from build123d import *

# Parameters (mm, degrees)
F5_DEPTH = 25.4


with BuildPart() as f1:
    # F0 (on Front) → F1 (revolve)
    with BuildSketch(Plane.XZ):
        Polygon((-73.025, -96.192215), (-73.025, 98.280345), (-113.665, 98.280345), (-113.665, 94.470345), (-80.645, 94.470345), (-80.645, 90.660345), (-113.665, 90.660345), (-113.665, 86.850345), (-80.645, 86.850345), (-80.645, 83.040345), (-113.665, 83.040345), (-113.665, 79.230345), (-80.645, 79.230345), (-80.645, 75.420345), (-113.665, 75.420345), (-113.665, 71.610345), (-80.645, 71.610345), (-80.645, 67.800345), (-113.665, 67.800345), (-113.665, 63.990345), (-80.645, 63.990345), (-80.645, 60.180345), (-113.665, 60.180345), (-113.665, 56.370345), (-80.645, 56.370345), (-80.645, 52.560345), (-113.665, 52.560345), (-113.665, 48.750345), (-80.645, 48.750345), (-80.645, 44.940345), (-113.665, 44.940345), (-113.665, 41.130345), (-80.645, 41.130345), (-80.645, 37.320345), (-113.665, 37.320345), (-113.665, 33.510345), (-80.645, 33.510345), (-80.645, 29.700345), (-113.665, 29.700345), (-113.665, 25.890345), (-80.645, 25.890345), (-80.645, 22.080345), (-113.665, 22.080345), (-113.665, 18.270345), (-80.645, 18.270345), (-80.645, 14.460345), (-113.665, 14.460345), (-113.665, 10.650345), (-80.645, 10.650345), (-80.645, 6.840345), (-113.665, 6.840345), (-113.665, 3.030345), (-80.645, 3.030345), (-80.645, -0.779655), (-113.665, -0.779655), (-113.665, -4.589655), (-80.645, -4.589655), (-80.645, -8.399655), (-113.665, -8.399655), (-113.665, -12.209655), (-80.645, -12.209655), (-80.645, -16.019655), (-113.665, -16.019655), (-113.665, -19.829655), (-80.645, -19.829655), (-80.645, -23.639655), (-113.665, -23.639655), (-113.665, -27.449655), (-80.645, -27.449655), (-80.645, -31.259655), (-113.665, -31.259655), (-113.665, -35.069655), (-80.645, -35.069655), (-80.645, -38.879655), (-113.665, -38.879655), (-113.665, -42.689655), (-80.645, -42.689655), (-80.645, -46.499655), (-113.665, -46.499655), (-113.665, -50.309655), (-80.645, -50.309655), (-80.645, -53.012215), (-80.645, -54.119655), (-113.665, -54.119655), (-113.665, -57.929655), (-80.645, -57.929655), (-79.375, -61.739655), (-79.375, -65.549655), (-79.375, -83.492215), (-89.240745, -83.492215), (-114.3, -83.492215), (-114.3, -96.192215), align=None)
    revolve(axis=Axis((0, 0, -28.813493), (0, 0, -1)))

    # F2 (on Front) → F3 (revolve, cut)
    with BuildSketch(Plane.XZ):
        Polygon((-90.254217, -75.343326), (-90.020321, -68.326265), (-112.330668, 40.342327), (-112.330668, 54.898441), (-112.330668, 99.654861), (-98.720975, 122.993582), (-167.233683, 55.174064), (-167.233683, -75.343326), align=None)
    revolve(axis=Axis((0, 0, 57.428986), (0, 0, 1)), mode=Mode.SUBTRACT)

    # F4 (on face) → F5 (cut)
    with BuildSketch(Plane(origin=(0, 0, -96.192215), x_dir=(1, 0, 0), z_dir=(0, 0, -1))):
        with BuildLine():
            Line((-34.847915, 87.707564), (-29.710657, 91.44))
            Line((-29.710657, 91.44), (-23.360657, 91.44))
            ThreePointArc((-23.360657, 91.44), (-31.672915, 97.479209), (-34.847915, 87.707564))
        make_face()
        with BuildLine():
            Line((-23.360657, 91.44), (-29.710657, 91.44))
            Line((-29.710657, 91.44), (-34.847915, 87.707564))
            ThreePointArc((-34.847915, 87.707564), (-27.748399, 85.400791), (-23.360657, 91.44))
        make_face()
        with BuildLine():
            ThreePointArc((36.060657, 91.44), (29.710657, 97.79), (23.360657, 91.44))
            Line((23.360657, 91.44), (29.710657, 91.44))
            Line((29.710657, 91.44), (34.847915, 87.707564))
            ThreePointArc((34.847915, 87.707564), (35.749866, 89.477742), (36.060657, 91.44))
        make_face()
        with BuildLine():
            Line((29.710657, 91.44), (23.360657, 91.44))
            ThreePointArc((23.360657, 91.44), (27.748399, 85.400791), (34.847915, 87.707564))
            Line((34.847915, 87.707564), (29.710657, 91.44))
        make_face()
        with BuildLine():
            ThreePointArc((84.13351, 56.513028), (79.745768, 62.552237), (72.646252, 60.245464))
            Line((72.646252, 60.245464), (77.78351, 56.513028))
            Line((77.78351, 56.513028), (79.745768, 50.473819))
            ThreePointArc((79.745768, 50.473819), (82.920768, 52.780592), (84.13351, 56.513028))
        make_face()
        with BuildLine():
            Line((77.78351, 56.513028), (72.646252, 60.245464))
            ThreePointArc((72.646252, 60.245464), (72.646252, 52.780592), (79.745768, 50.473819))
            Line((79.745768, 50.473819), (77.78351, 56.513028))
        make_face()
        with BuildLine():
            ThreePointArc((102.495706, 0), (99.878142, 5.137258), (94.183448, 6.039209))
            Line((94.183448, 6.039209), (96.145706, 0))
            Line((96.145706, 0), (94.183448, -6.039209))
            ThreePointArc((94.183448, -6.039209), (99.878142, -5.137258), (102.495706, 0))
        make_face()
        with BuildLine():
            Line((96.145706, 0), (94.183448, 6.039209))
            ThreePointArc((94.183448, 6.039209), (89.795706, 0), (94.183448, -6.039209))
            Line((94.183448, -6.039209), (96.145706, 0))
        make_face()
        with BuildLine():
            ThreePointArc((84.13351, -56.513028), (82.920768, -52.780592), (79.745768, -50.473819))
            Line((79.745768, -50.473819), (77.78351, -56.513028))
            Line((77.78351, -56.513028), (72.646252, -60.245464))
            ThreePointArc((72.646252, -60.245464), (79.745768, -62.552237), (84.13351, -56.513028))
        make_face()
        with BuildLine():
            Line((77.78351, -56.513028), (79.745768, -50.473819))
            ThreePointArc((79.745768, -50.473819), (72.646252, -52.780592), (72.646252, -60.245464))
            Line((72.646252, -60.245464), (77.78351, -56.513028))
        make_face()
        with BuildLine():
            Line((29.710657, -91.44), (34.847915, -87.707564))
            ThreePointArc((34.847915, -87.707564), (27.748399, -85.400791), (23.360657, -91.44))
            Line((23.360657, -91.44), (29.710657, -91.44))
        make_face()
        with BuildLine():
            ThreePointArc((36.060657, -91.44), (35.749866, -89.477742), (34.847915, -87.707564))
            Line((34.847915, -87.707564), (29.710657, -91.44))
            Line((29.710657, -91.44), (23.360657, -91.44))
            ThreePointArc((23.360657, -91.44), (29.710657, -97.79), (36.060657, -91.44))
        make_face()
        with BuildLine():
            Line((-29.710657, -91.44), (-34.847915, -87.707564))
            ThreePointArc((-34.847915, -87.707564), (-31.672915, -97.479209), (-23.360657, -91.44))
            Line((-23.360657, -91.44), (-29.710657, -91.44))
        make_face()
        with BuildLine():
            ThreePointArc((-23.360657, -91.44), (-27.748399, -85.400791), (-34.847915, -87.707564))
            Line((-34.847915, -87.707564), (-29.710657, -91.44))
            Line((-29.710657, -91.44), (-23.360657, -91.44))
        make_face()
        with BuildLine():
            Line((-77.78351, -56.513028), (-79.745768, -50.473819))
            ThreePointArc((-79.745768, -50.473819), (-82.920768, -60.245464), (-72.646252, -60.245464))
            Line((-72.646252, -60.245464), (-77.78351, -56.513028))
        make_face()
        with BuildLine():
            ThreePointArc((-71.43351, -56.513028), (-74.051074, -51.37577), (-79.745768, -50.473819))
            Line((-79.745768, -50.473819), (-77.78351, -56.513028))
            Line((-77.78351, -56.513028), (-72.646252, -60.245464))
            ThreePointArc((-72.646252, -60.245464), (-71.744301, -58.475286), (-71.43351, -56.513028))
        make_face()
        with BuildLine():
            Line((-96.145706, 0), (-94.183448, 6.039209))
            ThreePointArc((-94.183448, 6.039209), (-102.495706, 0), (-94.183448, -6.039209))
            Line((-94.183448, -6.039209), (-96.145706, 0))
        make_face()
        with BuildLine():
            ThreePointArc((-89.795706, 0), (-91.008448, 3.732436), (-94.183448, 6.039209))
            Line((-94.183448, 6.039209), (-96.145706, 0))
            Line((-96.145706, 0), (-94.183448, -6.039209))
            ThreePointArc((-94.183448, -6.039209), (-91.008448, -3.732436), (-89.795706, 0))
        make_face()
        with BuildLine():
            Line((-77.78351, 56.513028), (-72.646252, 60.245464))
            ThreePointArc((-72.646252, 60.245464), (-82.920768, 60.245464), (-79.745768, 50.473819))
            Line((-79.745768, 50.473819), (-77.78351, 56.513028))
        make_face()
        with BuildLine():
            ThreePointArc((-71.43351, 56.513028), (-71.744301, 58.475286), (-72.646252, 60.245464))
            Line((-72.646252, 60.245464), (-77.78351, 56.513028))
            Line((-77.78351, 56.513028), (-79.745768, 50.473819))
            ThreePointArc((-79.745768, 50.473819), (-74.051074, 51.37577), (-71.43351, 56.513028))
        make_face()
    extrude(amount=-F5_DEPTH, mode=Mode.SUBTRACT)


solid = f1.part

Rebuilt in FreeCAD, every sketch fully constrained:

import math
import FreeCAD as App
import Part
import Sketcher

V = App.Vector
Q = App.Units.Quantity

doc = App.newDocument("Part")
params = doc.addObject("Spreadsheet::Sheet", "Params")
for row, (alias, value) in enumerate([
    ("sketch1_width", "1.6 in"),
    ("sketch1_width2", "1.3 in"),
    ("sketch1_height", "0.5 in"),
    ("sketch1_height2", "0.15 in"),
    ("sketch1_width3", "1.375 in"),
    ("revolution_angle", "360 deg"),
    ("groove_angle", "360 deg"),
    ("sketch3_radius", "0.25 in"),
    ("pocket1_length", "1 in"),
], start=1):
    params.set(f"A{row}", alias)
    params.set(f"B{row}", "=" + value)
    params.setAlias(f"B{row}", alias)

body = doc.addObject("PartDesign::Body", "Body")

# Sketch on XZ plane
sketch1 = doc.addObject("Sketcher::SketchObject", "Sketch")
body.addObject(sketch1)
sketch1.AttachmentSupport = (doc.XZ_Plane, [""])
sketch1.MapMode = "FlatFace"
sketch1.addGeometry(Part.LineSegment(V(-73.025, -96.192215, 0), V(-73.025, 98.280345, 0)), False)
sketch1.addGeometry(Part.LineSegment(V(-73.025, 98.280345, 0), V(-113.665, 98.280345, 0)), False)
sketch1.addGeometry(Part.LineSegment(V(-113.665, 98.280345, 0), V(-113.665, 94.470345, 0)), False)
sketch1.addGeometry(Part.LineSegment(V(-113.665, 94.470345, 0), V(-80.645, 94.470345, 0)), False)
sketch1.addGeometry(Part.LineSegment(V(-80.645, 94.470345, 0), V(-80.645, 90.660345, 0)), False)
sketch1.addGeometry(Part.LineSegment(V(-80.645, 90.660345, 0), V(-113.665, 90.660345, 0)), False)
sketch1.addGeometry(Part.LineSegment(V(-113.665, 90.660345, 0), V(-113.665, 86.850345, 0)), False)
sketch1.addGeometry(Part.LineSegment(V(-113.665, 86.850345, 0), V(-80.645, 86.850345, 0)), False)
sketch1.addGeometry(Part.LineSegment(V(-80.645, 86.850345, 0), V(-80.645, 83.040345, 0)), False)
sketch1.addGeometry(Part.LineSegment(V(-80.645, 83.040345, 0), V(-113.665, 83.040345, 0)), False)
sketch1.addGeometry(Part.LineSegment(V(-113.665, 83.040345, 0), V(-113.665, 79.230345, 0)), False)
sketch1.addGeometry(Part.LineSegment(V(-113.665, 79.230345, 0), V(-80.645, 79.230345, 0)), False)
sketch1.addGeometry(Part.LineSegment(V(-80.645, 79.230345, 0), V(-80.645, 75.420345, 0)), False)
sketch1.addGeometry(Part.LineSegment(V(-80.645, 75.420345, 0), V(-113.665, 75.420345, 0)), False)
sketch1.addGeometry(Part.LineSegment(V(-113.665, 75.420345, 0), V(-113.665, 71.610345, 0)), False)
sketch1.addGeometry(Part.LineSegment(V(-113.665, 71.610345, 0), V(-80.645, 71.610345, 0)), False)
sketch1.addGeometry(Part.LineSegment(V(-80.645, 71.610345, 0), V(-80.645, 67.800345, 0)), False)
sketch1.addGeometry(Part.LineSegment(V(-80.645, 67.800345, 0), V(-113.665, 67.800345, 0)), False)
sketch1.addGeometry(Part.LineSegment(V(-113.665, 67.800345, 0), V(-113.665, 63.990345, 0)), False)
sketch1.addGeometry(Part.LineSegment(V(-113.665, 63.990345, 0), V(-80.645, 63.990345, 0)), False)
sketch1.addGeometry(Part.LineSegment(V(-80.645, 63.990345, 0), V(-80.645, 60.180345, 0)), False)
sketch1.addGeometry(Part.LineSegment(V(-80.645, 60.180345, 0), V(-113.665, 60.180345, 0)), False)
sketch1.addGeometry(Part.LineSegment(V(-113.665, 60.180345, 0), V(-113.665, 56.370345, 0)), False)
sketch1.addGeometry(Part.LineSegment(V(-113.665, 56.370345, 0), V(-80.645, 56.370345, 0)), False)
sketch1.addGeometry(Part.LineSegment(V(-80.645, 56.370345, 0), V(-80.645, 52.560345, 0)), False)
sketch1.addGeometry(Part.LineSegment(V(-80.645, 52.560345, 0), V(-113.665, 52.560345, 0)), False)
sketch1.addGeometry(Part.LineSegment(V(-113.665, 52.560345, 0), V(-113.665, 48.750345, 0)), False)
sketch1.addGeometry(Part.LineSegment(V(-113.665, 48.750345, 0), V(-80.645, 48.750345, 0)), False)
sketch1.addGeometry(Part.LineSegment(V(-80.645, 48.750345, 0), V(-80.645, 44.940345, 0)), False)
sketch1.addGeometry(Part.LineSegment(V(-80.645, 44.940345, 0), V(-113.665, 44.940345, 0)), False)
sketch1.addGeometry(Part.LineSegment(V(-113.665, 44.940345, 0), V(-113.665, 41.130345, 0)), False)
sketch1.addGeometry(Part.LineSegment(V(-113.665, 41.130345, 0), V(-80.645, 41.130345, 0)), False)
sketch1.addGeometry(Part.LineSegment(V(-80.645, 41.130345, 0), V(-80.645, 37.320345, 0)), False)
sketch1.addGeometry(Part.LineSegment(V(-80.645, 37.320345, 0), V(-113.665, 37.320345, 0)), False)
sketch1.addGeometry(Part.LineSegment(V(-113.665, 37.320345, 0), V(-113.665, 33.510345, 0)), False)
sketch1.addGeometry(Part.LineSegment(V(-113.665, 33.510345, 0), V(-80.645, 33.510345, 0)), False)
sketch1.addGeometry(Part.LineSegment(V(-80.645, 33.510345, 0), V(-80.645, 29.700345, 0)), False)
sketch1.addGeometry(Part.LineSegment(V(-80.645, 29.700345, 0), V(-113.665, 29.700345, 0)), False)
sketch1.addGeometry(Part.LineSegment(V(-113.665, 29.700345, 0), V(-113.665, 25.890345, 0)), False)
sketch1.addGeometry(Part.LineSegment(V(-113.665, 25.890345, 0), V(-80.645, 25.890345, 0)), False)
sketch1.addGeometry(Part.LineSegment(V(-80.645, 25.890345, 0), V(-80.645, 22.080345, 0)), False)
sketch1.addGeometry(Part.LineSegment(V(-80.645, 22.080345, 0), V(-113.665, 22.080345, 0)), False)
sketch1.addGeometry(Part.LineSegment(V(-113.665, 22.080345, 0), V(-113.665, 18.270345, 0)), False)
sketch1.addGeometry(Part.LineSegment(V(-113.665, 18.270345, 0), V(-80.645, 18.270345, 0)), False)
sketch1.addGeometry(Part.LineSegment(V(-80.645, 18.270345, 0), V(-80.645, 14.460345, 0)), False)
sketch1.addGeometry(Part.LineSegment(V(-80.645, 14.460345, 0), V(-113.665, 14.460345, 0)), False)
sketch1.addGeometry(Part.LineSegment(V(-113.665, 14.460345, 0), V(-113.665, 10.650345, 0)), False)
sketch1.addGeometry(Part.LineSegment(V(-113.665, 10.650345, 0), V(-80.645, 10.650345, 0)), False)
sketch1.addGeometry(Part.LineSegment(V(-80.645, 10.650345, 0), V(-80.645, 6.840345, 0)), False)
sketch1.addGeometry(Part.LineSegment(V(-80.645, 6.840345, 0), V(-113.665, 6.840345, 0)), False)
sketch1.addGeometry(Part.LineSegment(V(-113.665, 6.840345, 0), V(-113.665, 3.030345, 0)), False)
sketch1.addGeometry(Part.LineSegment(V(-113.665, 3.030345, 0), V(-80.645, 3.030345, 0)), False)
sketch1.addGeometry(Part.LineSegment(V(-80.645, 3.030345, 0), V(-80.645, -0.779655, 0)), False)
sketch1.addGeometry(Part.LineSegment(V(-80.645, -0.779655, 0), V(-113.665, -0.779655, 0)), False)
sketch1.addGeometry(Part.LineSegment(V(-113.665, -0.779655, 0), V(-113.665, -4.589655, 0)), False)
sketch1.addGeometry(Part.LineSegment(V(-113.665, -4.589655, 0), V(-80.645, -4.589655, 0)), False)
sketch1.addGeometry(Part.LineSegment(V(-80.645, -4.589655, 0), V(-80.645, -8.399655, 0)), False)
sketch1.addGeometry(Part.LineSegment(V(-80.645, -8.399655, 0), V(-113.665, -8.399655, 0)), False)
sketch1.addGeometry(Part.LineSegment(V(-113.665, -8.399655, 0), V(-113.665, -12.209655, 0)), False)
sketch1.addGeometry(Part.LineSegment(V(-113.665, -12.209655, 0), V(-80.645, -12.209655, 0)), False)
sketch1.addGeometry(Part.LineSegment(V(-80.645, -12.209655, 0), V(-80.645, -16.019655, 0)), False)
sketch1.addGeometry(Part.LineSegment(V(-80.645, -16.019655, 0), V(-113.665, -16.019655, 0)), False)
sketch1.addGeometry(Part.LineSegment(V(-113.665, -16.019655, 0), V(-113.665, -19.829655, 0)), False)
sketch1.addGeometry(Part.LineSegment(V(-113.665, -19.829655, 0), V(-80.645, -19.829655, 0)), False)
sketch1.addGeometry(Part.LineSegment(V(-80.645, -19.829655, 0), V(-80.645, -23.639655, 0)), False)
sketch1.addGeometry(Part.LineSegment(V(-80.645, -23.639655, 0), V(-113.665, -23.639655, 0)), False)
sketch1.addGeometry(Part.LineSegment(V(-113.665, -23.639655, 0), V(-113.665, -27.449655, 0)), False)
sketch1.addGeometry(Part.LineSegment(V(-113.665, -27.449655, 0), V(-80.645, -27.449655, 0)), False)
sketch1.addGeometry(Part.LineSegment(V(-80.645, -27.449655, 0), V(-80.645, -31.259655, 0)), False)
sketch1.addGeometry(Part.LineSegment(V(-80.645, -31.259655, 0), V(-113.665, -31.259655, 0)), False)
sketch1.addGeometry(Part.LineSegment(V(-113.665, -31.259655, 0), V(-113.665, -35.069655, 0)), False)
sketch1.addGeometry(Part.LineSegment(V(-113.665, -35.069655, 0), V(-80.645, -35.069655, 0)), False)
sketch1.addGeometry(Part.LineSegment(V(-80.645, -35.069655, 0), V(-80.645, -38.879655, 0)), False)
sketch1.addGeometry(Part.LineSegment(V(-80.645, -38.879655, 0), V(-113.665, -38.879655, 0)), False)
sketch1.addGeometry(Part.LineSegment(V(-113.665, -38.879655, 0), V(-113.665, -42.689655, 0)), False)
sketch1.addGeometry(Part.LineSegment(V(-113.665, -42.689655, 0), V(-80.645, -42.689655, 0)), False)
sketch1.addGeometry(Part.LineSegment(V(-80.645, -42.689655, 0), V(-80.645, -46.499655, 0)), False)
sketch1.addGeometry(Part.LineSegment(V(-80.645, -46.499655, 0), V(-113.665, -46.499655, 0)), False)
sketch1.addGeometry(Part.LineSegment(V(-113.665, -46.499655, 0), V(-113.665, -50.309655, 0)), False)
sketch1.addGeometry(Part.LineSegment(V(-113.665, -50.309655, 0), V(-80.645, -50.309655, 0)), False)
sketch1.addGeometry(Part.LineSegment(V(-80.645, -50.309655, 0), V(-80.645, -54.119655, 0)), False)
sketch1.addGeometry(Part.LineSegment(V(-80.645, -54.119655, 0), V(-113.665, -54.119655, 0)), False)
sketch1.addGeometry(Part.LineSegment(V(-113.665, -54.119655, 0), V(-113.665, -57.929655, 0)), False)
sketch1.addGeometry(Part.LineSegment(V(-113.665, -57.929655, 0), V(-80.645, -57.929655, 0)), False)
sketch1.addGeometry(Part.LineSegment(V(-80.645, -57.929655, 0), V(-79.375, -61.739655, 0)), False)
sketch1.addGeometry(Part.LineSegment(V(-79.375, -61.739655, 0), V(-79.375, -83.492215, 0)), False)
sketch1.addGeometry(Part.LineSegment(V(-79.375, -83.492215, 0), V(-114.3, -83.492215, 0)), False)
sketch1.addGeometry(Part.LineSegment(V(-114.3, -83.492215, 0), V(-114.3, -96.192215, 0)), False)
sketch1.addGeometry(Part.LineSegment(V(-114.3, -96.192215, 0), V(-73.025, -96.192215, 0)), False)
sketch1.addConstraint(Sketcher.Constraint("Coincident", 0, 2, 1, 1))
sketch1.addConstraint(Sketcher.Constraint("Coincident", 1, 2, 2, 1))
sketch1.addConstraint(Sketcher.Constraint("Coincident", 2, 2, 3, 1))
sketch1.addConstraint(Sketcher.Constraint("Coincident", 3, 2, 4, 1))
sketch1.addConstraint(Sketcher.Constraint("Coincident", 4, 2, 5, 1))
sketch1.addConstraint(Sketcher.Constraint("Coincident", 5, 2, 6, 1))
sketch1.addConstraint(Sketcher.Constraint("Coincident", 6, 2, 7, 1))
sketch1.addConstraint(Sketcher.Constraint("Coincident", 7, 2, 8, 1))
sketch1.addConstraint(Sketcher.Constraint("Coincident", 8, 2, 9, 1))
sketch1.addConstraint(Sketcher.Constraint("Coincident", 9, 2, 10, 1))
sketch1.addConstraint(Sketcher.Constraint("Coincident", 10, 2, 11, 1))
sketch1.addConstraint(Sketcher.Constraint("Coincident", 11, 2, 12, 1))
sketch1.addConstraint(Sketcher.Constraint("Coincident", 12, 2, 13, 1))
sketch1.addConstraint(Sketcher.Constraint("Coincident", 13, 2, 14, 1))
sketch1.addConstraint(Sketcher.Constraint("Coincident", 14, 2, 15, 1))
sketch1.addConstraint(Sketcher.Constraint("Coincident", 15, 2, 16, 1))
sketch1.addConstraint(Sketcher.Constraint("Coincident", 16, 2, 17, 1))
sketch1.addConstraint(Sketcher.Constraint("Coincident", 17, 2, 18, 1))
sketch1.addConstraint(Sketcher.Constraint("Coincident", 18, 2, 19, 1))
sketch1.addConstraint(Sketcher.Constraint("Coincident", 19, 2, 20, 1))
sketch1.addConstraint(Sketcher.Constraint("Coincident", 20, 2, 21, 1))
sketch1.addConstraint(Sketcher.Constraint("Coincident", 21, 2, 22, 1))
sketch1.addConstraint(Sketcher.Constraint("Coincident", 22, 2, 23, 1))
sketch1.addConstraint(Sketcher.Constraint("Coincident", 23, 2, 24, 1))
sketch1.addConstraint(Sketcher.Constraint("Coincident", 24, 2, 25, 1))
sketch1.addConstraint(Sketcher.Constraint("Coincident", 25, 2, 26, 1))
sketch1.addConstraint(Sketcher.Constraint("Coincident", 26, 2, 27, 1))
sketch1.addConstraint(Sketcher.Constraint("Coincident", 27, 2, 28, 1))
sketch1.addConstraint(Sketcher.Constraint("Coincident", 28, 2, 29, 1))
sketch1.addConstraint(Sketcher.Constraint("Coincident", 29, 2, 30, 1))
sketch1.addConstraint(Sketcher.Constraint("Coincident", 30, 2, 31, 1))
sketch1.addConstraint(Sketcher.Constraint("Coincident", 31, 2, 32, 1))
sketch1.addConstraint(Sketcher.Constraint("Coincident", 32, 2, 33, 1))
sketch1.addConstraint(Sketcher.Constraint("Coincident", 33, 2, 34, 1))
sketch1.addConstraint(Sketcher.Constraint("Coincident", 34, 2, 35, 1))
sketch1.addConstraint(Sketcher.Constraint("Coincident", 35, 2, 36, 1))
sketch1.addConstraint(Sketcher.Constraint("Coincident", 36, 2, 37, 1))
sketch1.addConstraint(Sketcher.Constraint("Coincident", 37, 2, 38, 1))
sketch1.addConstraint(Sketcher.Constraint("Coincident", 38, 2, 39, 1))
sketch1.addConstraint(Sketcher.Constraint("Coincident", 39, 2, 40, 1))
sketch1.addConstraint(Sketcher.Constraint("Coincident", 40, 2, 41, 1))
sketch1.addConstraint(Sketcher.Constraint("Coincident", 41, 2, 42, 1))
sketch1.addConstraint(Sketcher.Constraint("Coincident", 42, 2, 43, 1))
sketch1.addConstraint(Sketcher.Constraint("Coincident", 43, 2, 44, 1))
sketch1.addConstraint(Sketcher.Constraint("Coincident", 44, 2, 45, 1))
sketch1.addConstraint(Sketcher.Constraint("Coincident", 45, 2, 46, 1))
sketch1.addConstraint(Sketcher.Constraint("Coincident", 46, 2, 47, 1))
sketch1.addConstraint(Sketcher.Constraint("Coincident", 47, 2, 48, 1))
sketch1.addConstraint(Sketcher.Constraint("Coincident", 48, 2, 49, 1))
sketch1.addConstraint(Sketcher.Constraint("Coincident", 49, 2, 50, 1))
sketch1.addConstraint(Sketcher.Constraint("Coincident", 50, 2, 51, 1))
sketch1.addConstraint(Sketcher.Constraint("Coincident", 51, 2, 52, 1))
sketch1.addConstraint(Sketcher.Constraint("Coincident", 52, 2, 53, 1))
sketch1.addConstraint(Sketcher.Constraint("Coincident", 53, 2, 54, 1))
sketch1.addConstraint(Sketcher.Constraint("Coincident", 54, 2, 55, 1))
sketch1.addConstraint(Sketcher.Constraint("Coincident", 55, 2, 56, 1))
sketch1.addConstraint(Sketcher.Constraint("Coincident", 56, 2, 57, 1))
sketch1.addConstraint(Sketcher.Constraint("Coincident", 57, 2, 58, 1))
sketch1.addConstraint(Sketcher.Constraint("Coincident", 58, 2, 59, 1))
sketch1.addConstraint(Sketcher.Constraint("Coincident", 59, 2, 60, 1))
sketch1.addConstraint(Sketcher.Constraint("Coincident", 60, 2, 61, 1))
sketch1.addConstraint(Sketcher.Constraint("Coincident", 61, 2, 62, 1))
sketch1.addConstraint(Sketcher.Constraint("Coincident", 62, 2, 63, 1))
sketch1.addConstraint(Sketcher.Constraint("Coincident", 63, 2, 64, 1))
sketch1.addConstraint(Sketcher.Constraint("Coincident", 64, 2, 65, 1))
sketch1.addConstraint(Sketcher.Constraint("Coincident", 65, 2, 66, 1))
sketch1.addConstraint(Sketcher.Constraint("Coincident", 66, 2, 67, 1))
sketch1.addConstraint(Sketcher.Constraint("Coincident", 67, 2, 68, 1))
sketch1.addConstraint(Sketcher.Constraint("Coincident", 68, 2, 69, 1))
sketch1.addConstraint(Sketcher.Constraint("Coincident", 69, 2, 70, 1))
sketch1.addConstraint(Sketcher.Constraint("Coincident", 70, 2, 71, 1))
sketch1.addConstraint(Sketcher.Constraint("Coincident", 71, 2, 72, 1))
sketch1.addConstraint(Sketcher.Constraint("Coincident", 72, 2, 73, 1))
sketch1.addConstraint(Sketcher.Constraint("Coincident", 73, 2, 74, 1))
sketch1.addConstraint(Sketcher.Constraint("Coincident", 74, 2, 75, 1))
sketch1.addConstraint(Sketcher.Constraint("Coincident", 75, 2, 76, 1))
sketch1.addConstraint(Sketcher.Constraint("Coincident", 76, 2, 77, 1))
sketch1.addConstraint(Sketcher.Constraint("Coincident", 77, 2, 78, 1))
sketch1.addConstraint(Sketcher.Constraint("Coincident", 78, 2, 79, 1))
sketch1.addConstraint(Sketcher.Constraint("Coincident", 79, 2, 80, 1))
sketch1.addConstraint(Sketcher.Constraint("Coincident", 80, 2, 81, 1))
sketch1.addConstraint(Sketcher.Constraint("Coincident", 81, 2, 82, 1))
sketch1.addConstraint(Sketcher.Constraint("Coincident", 82, 2, 83, 1))
sketch1.addConstraint(Sketcher.Constraint("Coincident", 83, 2, 84, 1))
sketch1.addConstraint(Sketcher.Constraint("Coincident", 84, 2, 85, 1))
sketch1.addConstraint(Sketcher.Constraint("Coincident", 85, 2, 86, 1))
sketch1.addConstraint(Sketcher.Constraint("Coincident", 86, 2, 87, 1))
sketch1.addConstraint(Sketcher.Constraint("Coincident", 87, 2, 88, 1))
sketch1.addConstraint(Sketcher.Constraint("Coincident", 88, 2, 0, 1))
sketch1.addConstraint(Sketcher.Constraint("Vertical", 0))
sketch1.addConstraint(Sketcher.Constraint("Horizontal", 1))
sketch1.addConstraint(Sketcher.Constraint("Vertical", 2))
sketch1.addConstraint(Sketcher.Constraint("Horizontal", 3))
sketch1.addConstraint(Sketcher.Constraint("Vertical", 4))
sketch1.addConstraint(Sketcher.Constraint("Horizontal", 5))
sketch1.addConstraint(Sketcher.Constraint("Vertical", 6))
sketch1.addConstraint(Sketcher.Constraint("Horizontal", 7))
sketch1.addConstraint(Sketcher.Constraint("Vertical", 8))
sketch1.addConstraint(Sketcher.Constraint("Horizontal", 9))
sketch1.addConstraint(Sketcher.Constraint("Vertical", 10))
sketch1.addConstraint(Sketcher.Constraint("Horizontal", 11))
sketch1.addConstraint(Sketcher.Constraint("Vertical", 12))
sketch1.addConstraint(Sketcher.Constraint("Horizontal", 13))
sketch1.addConstraint(Sketcher.Constraint("Vertical", 14))
sketch1.addConstraint(Sketcher.Constraint("Horizontal", 15))
sketch1.addConstraint(Sketcher.Constraint("Vertical", 16))
sketch1.addConstraint(Sketcher.Constraint("Horizontal", 17))
sketch1.addConstraint(Sketcher.Constraint("Vertical", 18))
sketch1.addConstraint(Sketcher.Constraint("Horizontal", 19))
sketch1.addConstraint(Sketcher.Constraint("Vertical", 20))
sketch1.addConstraint(Sketcher.Constraint("Horizontal", 21))
sketch1.addConstraint(Sketcher.Constraint("Vertical", 22))
sketch1.addConstraint(Sketcher.Constraint("Horizontal", 23))
sketch1.addConstraint(Sketcher.Constraint("Vertical", 24))
sketch1.addConstraint(Sketcher.Constraint("Horizontal", 25))
sketch1.addConstraint(Sketcher.Constraint("Vertical", 26))
sketch1.addConstraint(Sketcher.Constraint("Horizontal", 27))
sketch1.addConstraint(Sketcher.Constraint("Vertical", 28))
sketch1.addConstraint(Sketcher.Constraint("Horizontal", 29))
sketch1.addConstraint(Sketcher.Constraint("Vertical", 30))
sketch1.addConstraint(Sketcher.Constraint("Horizontal", 31))
sketch1.addConstraint(Sketcher.Constraint("Vertical", 32))
sketch1.addConstraint(Sketcher.Constraint("Horizontal", 33))
sketch1.addConstraint(Sketcher.Constraint("Vertical", 34))
sketch1.addConstraint(Sketcher.Constraint("Horizontal", 35))
sketch1.addConstraint(Sketcher.Constraint("Vertical", 36))
sketch1.addConstraint(Sketcher.Constraint("Horizontal", 37))
sketch1.addConstraint(Sketcher.Constraint("Vertical", 38))
sketch1.addConstraint(Sketcher.Constraint("Horizontal", 39))
sketch1.addConstraint(Sketcher.Constraint("Vertical", 40))
sketch1.addConstraint(Sketcher.Constraint("Horizontal", 41))
sketch1.addConstraint(Sketcher.Constraint("Vertical", 42))
sketch1.addConstraint(Sketcher.Constraint("Horizontal", 43))
sketch1.addConstraint(Sketcher.Constraint("Vertical", 44))
sketch1.addConstraint(Sketcher.Constraint("Horizontal", 45))
sketch1.addConstraint(Sketcher.Constraint("Vertical", 46))
sketch1.addConstraint(Sketcher.Constraint("Horizontal", 47))
sketch1.addConstraint(Sketcher.Constraint("Vertical", 48))
sketch1.addConstraint(Sketcher.Constraint("Horizontal", 49))
sketch1.addConstraint(Sketcher.Constraint("Vertical", 50))
sketch1.addConstraint(Sketcher.Constraint("Horizontal", 51))
sketch1.addConstraint(Sketcher.Constraint("Vertical", 52))
sketch1.addConstraint(Sketcher.Constraint("Horizontal", 53))
sketch1.addConstraint(Sketcher.Constraint("Vertical", 54))
sketch1.addConstraint(Sketcher.Constraint("Horizontal", 55))
sketch1.addConstraint(Sketcher.Constraint("Vertical", 56))
sketch1.addConstraint(Sketcher.Constraint("Horizontal", 57))
sketch1.addConstraint(Sketcher.Constraint("Vertical", 58))
sketch1.addConstraint(Sketcher.Constraint("Horizontal", 59))
sketch1.addConstraint(Sketcher.Constraint("Vertical", 60))
sketch1.addConstraint(Sketcher.Constraint("Horizontal", 61))
sketch1.addConstraint(Sketcher.Constraint("Vertical", 62))
sketch1.addConstraint(Sketcher.Constraint("Horizontal", 63))
sketch1.addConstraint(Sketcher.Constraint("Vertical", 64))
sketch1.addConstraint(Sketcher.Constraint("Horizontal", 65))
sketch1.addConstraint(Sketcher.Constraint("Vertical", 66))
sketch1.addConstraint(Sketcher.Constraint("Horizontal", 67))
sketch1.addConstraint(Sketcher.Constraint("Vertical", 68))
sketch1.addConstraint(Sketcher.Constraint("Horizontal", 69))
sketch1.addConstraint(Sketcher.Constraint("Vertical", 70))
sketch1.addConstraint(Sketcher.Constraint("Horizontal", 71))
sketch1.addConstraint(Sketcher.Constraint("Vertical", 72))
sketch1.addConstraint(Sketcher.Constraint("Horizontal", 73))
sketch1.addConstraint(Sketcher.Constraint("Vertical", 74))
sketch1.addConstraint(Sketcher.Constraint("Horizontal", 75))
sketch1.addConstraint(Sketcher.Constraint("Vertical", 76))
sketch1.addConstraint(Sketcher.Constraint("Horizontal", 77))
sketch1.addConstraint(Sketcher.Constraint("Vertical", 78))
sketch1.addConstraint(Sketcher.Constraint("Horizontal", 79))
sketch1.addConstraint(Sketcher.Constraint("Vertical", 80))
sketch1.addConstraint(Sketcher.Constraint("Horizontal", 81))
sketch1.addConstraint(Sketcher.Constraint("Vertical", 82))
sketch1.addConstraint(Sketcher.Constraint("Horizontal", 83))
sketch1.addConstraint(Sketcher.Constraint("Vertical", 85))
sketch1.addConstraint(Sketcher.Constraint("Horizontal", 86))
sketch1.addConstraint(Sketcher.Constraint("Vertical", 87))
sketch1.addConstraint(Sketcher.Constraint("Horizontal", 88))
sketch1.addConstraint(Sketcher.Constraint("Vertical", 2, 2, 5, 2))
sketch1.addConstraint(Sketcher.Constraint("Vertical", 4, 2, 7, 2))
sketch1.addConstraint(Sketcher.Constraint("Vertical", 6, 2, 9, 2))
sketch1.addConstraint(Sketcher.Constraint("Vertical", 8, 2, 11, 2))
sketch1.addConstraint(Sketcher.Constraint("Vertical", 10, 2, 13, 2))
sketch1.addConstraint(Sketcher.Constraint("Vertical", 12, 2, 15, 2))
sketch1.addConstraint(Sketcher.Constraint("Vertical", 14, 2, 17, 2))
sketch1.addConstraint(Sketcher.Constraint("Vertical", 16, 2, 19, 2))
sketch1.addConstraint(Sketcher.Constraint("Vertical", 18, 2, 21, 2))
sketch1.addConstraint(Sketcher.Constraint("Vertical", 20, 2, 23, 2))
sketch1.addConstraint(Sketcher.Constraint("Vertical", 22, 2, 25, 2))
sketch1.addConstraint(Sketcher.Constraint("Vertical", 24, 2, 27, 2))
sketch1.addConstraint(Sketcher.Constraint("Vertical", 26, 2, 29, 2))
sketch1.addConstraint(Sketcher.Constraint("Vertical", 28, 2, 31, 2))
sketch1.addConstraint(Sketcher.Constraint("Vertical", 30, 2, 33, 2))
sketch1.addConstraint(Sketcher.Constraint("Vertical", 32, 2, 35, 2))
sketch1.addConstraint(Sketcher.Constraint("Vertical", 34, 2, 37, 2))
sketch1.addConstraint(Sketcher.Constraint("Vertical", 36, 2, 39, 2))
sketch1.addConstraint(Sketcher.Constraint("Vertical", 38, 2, 41, 2))
sketch1.addConstraint(Sketcher.Constraint("Vertical", 40, 2, 43, 2))
sketch1.addConstraint(Sketcher.Constraint("Vertical", 42, 2, 45, 2))
sketch1.addConstraint(Sketcher.Constraint("Vertical", 44, 2, 47, 2))
sketch1.addConstraint(Sketcher.Constraint("Vertical", 46, 2, 49, 2))
sketch1.addConstraint(Sketcher.Constraint("Vertical", 48, 2, 51, 2))
sketch1.addConstraint(Sketcher.Constraint("Vertical", 50, 2, 53, 2))
sketch1.addConstraint(Sketcher.Constraint("Vertical", 52, 2, 55, 2))
sketch1.addConstraint(Sketcher.Constraint("Vertical", 54, 2, 57, 2))
sketch1.addConstraint(Sketcher.Constraint("Vertical", 56, 2, 59, 2))
sketch1.addConstraint(Sketcher.Constraint("Vertical", 58, 2, 61, 2))
sketch1.addConstraint(Sketcher.Constraint("Vertical", 60, 2, 63, 2))
sketch1.addConstraint(Sketcher.Constraint("Vertical", 62, 2, 65, 2))
sketch1.addConstraint(Sketcher.Constraint("Vertical", 64, 2, 67, 2))
sketch1.addConstraint(Sketcher.Constraint("Vertical", 66, 2, 69, 2))
sketch1.addConstraint(Sketcher.Constraint("Vertical", 68, 2, 71, 2))
sketch1.addConstraint(Sketcher.Constraint("Vertical", 70, 2, 73, 2))
sketch1.addConstraint(Sketcher.Constraint("Vertical", 72, 2, 75, 2))
sketch1.addConstraint(Sketcher.Constraint("Vertical", 74, 2, 77, 2))
sketch1.addConstraint(Sketcher.Constraint("Vertical", 76, 2, 79, 2))
sketch1.addConstraint(Sketcher.Constraint("Vertical", 78, 2, 81, 2))
sketch1.addConstraint(Sketcher.Constraint("Vertical", 80, 2, 83, 2))
sketch1.addConstraint(Sketcher.Constraint("Equal", 2, 4))
sketch1.addConstraint(Sketcher.Constraint("Equal", 4, 6))
sketch1.addConstraint(Sketcher.Constraint("Equal", 6, 8))
sketch1.addConstraint(Sketcher.Constraint("Equal", 8, 10))
sketch1.addConstraint(Sketcher.Constraint("Equal", 10, 12))
sketch1.addConstraint(Sketcher.Constraint("Equal", 12, 14))
sketch1.addConstraint(Sketcher.Constraint("Equal", 14, 16))
sketch1.addConstraint(Sketcher.Constraint("Equal", 16, 18))
sketch1.addConstraint(Sketcher.Constraint("Equal", 18, 20))
sketch1.addConstraint(Sketcher.Constraint("Equal", 20, 22))
sketch1.addConstraint(Sketcher.Constraint("Equal", 22, 24))
sketch1.addConstraint(Sketcher.Constraint("Equal", 24, 26))
sketch1.addConstraint(Sketcher.Constraint("Equal", 26, 28))
sketch1.addConstraint(Sketcher.Constraint("Equal", 28, 30))
sketch1.addConstraint(Sketcher.Constraint("Equal", 30, 32))
sketch1.addConstraint(Sketcher.Constraint("Equal", 32, 34))
sketch1.addConstraint(Sketcher.Constraint("Equal", 34, 36))
sketch1.addConstraint(Sketcher.Constraint("Equal", 36, 38))
sketch1.addConstraint(Sketcher.Constraint("Equal", 38, 40))
sketch1.addConstraint(Sketcher.Constraint("Equal", 40, 42))
sketch1.addConstraint(Sketcher.Constraint("Equal", 42, 44))
sketch1.addConstraint(Sketcher.Constraint("Equal", 44, 46))
sketch1.addConstraint(Sketcher.Constraint("Equal", 46, 48))
sketch1.addConstraint(Sketcher.Constraint("Equal", 48, 50))
sketch1.addConstraint(Sketcher.Constraint("Equal", 50, 52))
sketch1.addConstraint(Sketcher.Constraint("Equal", 52, 54))
sketch1.addConstraint(Sketcher.Constraint("Equal", 54, 56))
sketch1.addConstraint(Sketcher.Constraint("Equal", 56, 58))
sketch1.addConstraint(Sketcher.Constraint("Equal", 58, 60))
sketch1.addConstraint(Sketcher.Constraint("Equal", 60, 62))
sketch1.addConstraint(Sketcher.Constraint("Equal", 62, 64))
sketch1.addConstraint(Sketcher.Constraint("Equal", 64, 66))
sketch1.addConstraint(Sketcher.Constraint("Equal", 66, 68))
sketch1.addConstraint(Sketcher.Constraint("Equal", 68, 70))
sketch1.addConstraint(Sketcher.Constraint("Equal", 70, 72))
sketch1.addConstraint(Sketcher.Constraint("Equal", 72, 74))
sketch1.addConstraint(Sketcher.Constraint("Equal", 74, 76))
sketch1.addConstraint(Sketcher.Constraint("Equal", 76, 78))
sketch1.addConstraint(Sketcher.Constraint("Equal", 78, 80))
sketch1.addConstraint(Sketcher.Constraint("Equal", 80, 82))
sketch1.addConstraint(Sketcher.Constraint("DistanceX", 1, 2, 1, 1, Q("1.6 in")))
sketch1.addConstraint(Sketcher.Constraint("DistanceX", 3, 1, 3, 2, Q("1.3 in")))
sketch1.addConstraint(Sketcher.Constraint("DistanceY", 87, 2, 87, 1, Q("0.5 in")))
sketch1.addConstraint(Sketcher.Constraint("DistanceY", 2, 2, 2, 1, Q("0.15 in")))
sketch1.addConstraint(Sketcher.Constraint("DistanceX", 86, 2, -1, 1, Q("4.5 in")))
sketch1.addConstraint(Sketcher.Constraint("DistanceX", 86, 2, 86, 1, Q("1.375 in")))
sketch1.addConstraint(Sketcher.Constraint("DistanceX", 88, 1, 88, 2, Q("1.625 in")))
sketch1.addConstraint(Sketcher.Constraint("DistanceY", 0, 1, 0, 2, Q("7.6564 in")))
sketch1.addConstraint(Sketcher.Constraint("DistanceY", 85, 2, 85, 1, Q("0.8564 in")))
sketch1.addConstraint(Sketcher.Constraint("DistanceY", -1, 1, 0, 2, 98.280345))
sketch1.setExpression("Constraints[257]", "Params.sketch1_width")
sketch1.setExpression("Constraints[258]", "Params.sketch1_width2")
sketch1.setExpression("Constraints[259]", "Params.sketch1_height")
sketch1.setExpression("Constraints[260]", "Params.sketch1_height2")
sketch1.setExpression("Constraints[262]", "Params.sketch1_width3")
revolution = doc.addObject("PartDesign::Revolution", "Revolution")
body.addObject(revolution)
revolution.Profile = sketch1
revolution.ReferenceAxis = (sketch1, ["V_Axis"])
revolution.setExpression("Angle", "Params.revolution_angle")

# Sketch on XZ plane
sketch2 = doc.addObject("Sketcher::SketchObject", "Sketch001")
body.addObject(sketch2)
sketch2.AttachmentSupport = (doc.XZ_Plane, [""])
sketch2.MapMode = "FlatFace"
sketch2.addGeometry(Part.LineSegment(V(-90.254217, -75.343326, 0), V(-90.020321, -68.326265, 0)), False)
sketch2.addGeometry(Part.LineSegment(V(-90.020321, -68.326265, 0), V(-112.330668, 40.342327, 0)), False)
sketch2.addGeometry(Part.LineSegment(V(-112.330668, 40.342327, 0), V(-112.330668, 99.654861, 0)), False)
sketch2.addGeometry(Part.LineSegment(V(-112.330668, 99.654861, 0), V(-98.720975, 122.993582, 0)), False)
sketch2.addGeometry(Part.LineSegment(V(-98.720975, 122.993582, 0), V(-167.233683, 55.174064, 0)), False)
sketch2.addGeometry(Part.LineSegment(V(-167.233683, 55.174064, 0), V(-167.233683, -75.343326, 0)), False)
sketch2.addGeometry(Part.LineSegment(V(-167.233683, -75.343326, 0), V(-90.254217, -75.343326, 0)), False)
sketch2.addConstraint(Sketcher.Constraint("Coincident", 0, 2, 1, 1))
sketch2.addConstraint(Sketcher.Constraint("Coincident", 1, 2, 2, 1))
sketch2.addConstraint(Sketcher.Constraint("Coincident", 2, 2, 3, 1))
sketch2.addConstraint(Sketcher.Constraint("Coincident", 3, 2, 4, 1))
sketch2.addConstraint(Sketcher.Constraint("Coincident", 4, 2, 5, 1))
sketch2.addConstraint(Sketcher.Constraint("Coincident", 5, 2, 6, 1))
sketch2.addConstraint(Sketcher.Constraint("Coincident", 6, 2, 0, 1))
sketch2.addConstraint(Sketcher.Constraint("Vertical", 2))
sketch2.addConstraint(Sketcher.Constraint("Vertical", 5))
sketch2.addConstraint(Sketcher.Constraint("Horizontal", 6))
sketch2.addConstraint(Sketcher.Constraint("DistanceY", 5, 2, 5, 1, 130.51739))
sketch2.addConstraint(Sketcher.Constraint("Distance", 0, 7.020958))
sketch2.addConstraint(Sketcher.Constraint("Distance", 1, 110.935181))
sketch2.addConstraint(Sketcher.Constraint("DistanceX", 6, 1, 6, 2, 76.979466))
sketch2.addConstraint(Sketcher.Constraint("DistanceY", 2, 1, 2, 2, 59.312534))
sketch2.addConstraint(Sketcher.Constraint("DistanceX", 0, 2, -1, 1, 90.020321))
sketch2.addConstraint(Sketcher.Constraint("DistanceX", 1, 2, -1, 1, 112.330668))
sketch2.addConstraint(Sketcher.Constraint("DistanceY", -1, 1, 2, 2, 99.654861))
sketch2.addConstraint(Sketcher.Constraint("DistanceY", 2, 2, 3, 2, 23.338721))
sketch2.addConstraint(Sketcher.Constraint("DistanceX", 4, 2, 3, 2, 68.512708))
sketch2.addConstraint(Sketcher.Constraint("DistanceY", 4, 2, 3, 2, 67.819518))
groove = doc.addObject("PartDesign::Groove", "Groove")
body.addObject(groove)
groove.Profile = sketch2
groove.ReferenceAxis = (sketch2, ["V_Axis"])
groove.setExpression("Angle", "Params.groove_angle")

# Sketch on XY plane
sketch3 = doc.addObject("Sketcher::SketchObject", "Sketch002")
body.addObject(sketch3)
sketch3.AttachmentSupport = (doc.XY_Plane, [""])
sketch3.MapMode = "FlatFace"
sketch3.AttachmentOffset = App.Placement(V(0, 0, -96.192215), App.Rotation())
sketch3.addGeometry(Part.ArcOfCircle(Part.Circle(V(-29.710657, -91.44, 0), V(0, 0, 1), 6.35), math.radians(144.000002), math.radians(360.000002)), False)
sketch3.addGeometry(Part.ArcOfCircle(Part.Circle(V(-29.710657, -91.44, 0), V(0, 0, 1), 6.35), math.radians(-0.000002), math.radians(144.000006)), False)
sketch3.addGeometry(Part.ArcOfCircle(Part.Circle(V(29.710657, -91.44, 0), V(0, 0, 1), 6.35), math.radians(180), math.radians(360)), False)
sketch3.addGeometry(Part.ArcOfCircle(Part.Circle(V(29.710657, -91.44, 0), V(0, 0, 1), 6.35), math.radians(35.999994), math.radians(180.000002)), False)
sketch3.addGeometry(Part.ArcOfCircle(Part.Circle(V(29.710661, -91.439999, 0), V(0, 0, 1), 6.349996), math.radians(-0.00001), math.radians(36.000011)), False)
sketch3.addGeometry(Part.ArcOfCircle(Part.Circle(V(77.78351, -56.513028, 0), V(0, 0, 1), 6.35), math.radians(-144.000006), math.radians(0.000002)), False)
sketch3.addGeometry(Part.ArcOfCircle(Part.Circle(V(77.78351, -56.513028, 0), V(0, 0, 1), 6.35), math.radians(72.000002), math.radians(215.999996)), False)
sketch3.addGeometry(Part.ArcOfCircle(Part.Circle(V(77.783509, -56.513029, 0), V(0, 0, 1), 6.350001), math.radians(0.000005), math.radians(71.999993)), False)
sketch3.addGeometry(Part.ArcOfCircle(Part.Circle(V(96.145706, 0, 0), V(0, 0, 1), 6.35), math.radians(-107.999996), math.radians(-0.000003)), False)
sketch3.addGeometry(Part.ArcOfCircle(Part.Circle(V(96.145706, 0, 0), V(0, 0, 1), 6.35), math.radians(108.000002), math.radians(251.999998)), False)
sketch3.addGeometry(Part.ArcOfCircle(Part.Circle(V(96.145706, 0, 0), V(0, 0, 1), 6.35), math.radians(0.000003), math.radians(107.999996)), False)
sketch3.addGeometry(Part.ArcOfCircle(Part.Circle(V(77.783509, 56.513029, 0), V(0, 0, 1), 6.350001), math.radians(-71.999993), math.radians(-0.000005)), False)
sketch3.addGeometry(Part.ArcOfCircle(Part.Circle(V(77.78351, 56.513028, 0), V(0, 0, 1), 6.35), math.radians(144.000004), math.radians(287.999998)), False)
sketch3.addGeometry(Part.ArcOfCircle(Part.Circle(V(77.78351, 56.513028, 0), V(0, 0, 1), 6.35), math.radians(-0.000002), math.radians(144.000006)), False)
sketch3.addGeometry(Part.ArcOfCircle(Part.Circle(V(29.710657, 91.44, 0), V(0, 0, 1), 6.35), math.radians(179.999998), math.radians(324.000006)), False)
sketch3.addGeometry(Part.ArcOfCircle(Part.Circle(V(29.710657, 91.44, 0), V(0, 0, 1), 6.35), math.radians(0), math.radians(180)), False)
sketch3.addGeometry(Part.ArcOfCircle(Part.Circle(V(29.710661, 91.439999, 0), V(0, 0, 1), 6.349996), math.radians(-36.000011), math.radians(0.00001)), False)
sketch3.addGeometry(Part.ArcOfCircle(Part.Circle(V(-29.710657, 91.44, 0), V(0, 0, 1), 6.35), math.radians(-0.000002), math.radians(215.999998)), False)
sketch3.addGeometry(Part.ArcOfCircle(Part.Circle(V(-29.710657, 91.44, 0), V(0, 0, 1), 6.35), math.radians(-144.000006), math.radians(0.000002)), False)
sketch3.addGeometry(Part.ArcOfCircle(Part.Circle(V(-77.78351, 56.513028, 0), V(0, 0, 1), 6.35), math.radians(35.999998), math.radians(251.999999)), False)
sketch3.addGeometry(Part.ArcOfCircle(Part.Circle(V(-77.783506, 56.513029, 0), V(0, 0, 1), 6.349996), math.radians(-0.00001), math.radians(36.000011)), False)
sketch3.addGeometry(Part.ArcOfCircle(Part.Circle(V(-77.78351, 56.513028, 0), V(0, 0, 1), 6.35), math.radians(-107.999996), math.radians(-0.000003)), False)
sketch3.addGeometry(Part.ArcOfCircle(Part.Circle(V(-96.145706, 0, 0), V(0, 0, 1), 6.35), math.radians(72.000001), math.radians(287.999999)), False)
sketch3.addGeometry(Part.ArcOfCircle(Part.Circle(V(-96.145707, -0.000001, 0), V(0, 0, 1), 6.350001), math.radians(0.000005), math.radians(71.999993)), False)
sketch3.addGeometry(Part.ArcOfCircle(Part.Circle(V(-96.145707, 0.000001, 0), V(0, 0, 1), 6.350001), math.radians(-71.999993), math.radians(-0.000005)), False)
sketch3.addGeometry(Part.ArcOfCircle(Part.Circle(V(-77.78351, -56.513028, 0), V(0, 0, 1), 6.35), math.radians(108.000001), math.radians(324.000002)), False)
sketch3.addGeometry(Part.ArcOfCircle(Part.Circle(V(-77.78351, -56.513028, 0), V(0, 0, 1), 6.35), math.radians(0.000003), math.radians(107.999996)), False)
sketch3.addGeometry(Part.ArcOfCircle(Part.Circle(V(-77.783506, -56.513029, 0), V(0, 0, 1), 6.349996), math.radians(-36.000011), math.radians(0.00001)), False)
sketch3.addConstraint(Sketcher.Constraint("Tangent", 0, 1, 1, 2))
sketch3.addConstraint(Sketcher.Constraint("Coincident", 1, 1, 0, 2))
sketch3.addConstraint(Sketcher.Constraint("Tangent", 2, 1, 3, 2))
sketch3.addConstraint(Sketcher.Constraint("Tangent", 3, 1, 4, 2))
sketch3.addConstraint(Sketcher.Constraint("Tangent", 4, 1, 2, 2))
sketch3.addConstraint(Sketcher.Constraint("Tangent", 5, 1, 6, 2))
sketch3.addConstraint(Sketcher.Constraint("Tangent", 6, 1, 7, 2))
sketch3.addConstraint(Sketcher.Constraint("Tangent", 7, 1, 5, 2))
sketch3.addConstraint(Sketcher.Constraint("Tangent", 8, 1, 9, 2))
sketch3.addConstraint(Sketcher.Constraint("Tangent", 9, 1, 10, 2))
sketch3.addConstraint(Sketcher.Constraint("Tangent", 10, 1, 8, 2))
sketch3.addConstraint(Sketcher.Constraint("Tangent", 11, 1, 12, 2))
sketch3.addConstraint(Sketcher.Constraint("Tangent", 12, 1, 13, 2))
sketch3.addConstraint(Sketcher.Constraint("Tangent", 13, 1, 11, 2))
sketch3.addConstraint(Sketcher.Constraint("Tangent", 14, 1, 15, 2))
sketch3.addConstraint(Sketcher.Constraint("Tangent", 15, 1, 16, 2))
sketch3.addConstraint(Sketcher.Constraint("Tangent", 16, 1, 14, 2))
sketch3.addConstraint(Sketcher.Constraint("Tangent", 17, 1, 18, 2))
sketch3.addConstraint(Sketcher.Constraint("Coincident", 18, 1, 17, 2))
sketch3.addConstraint(Sketcher.Constraint("Tangent", 19, 1, 20, 2))
sketch3.addConstraint(Sketcher.Constraint("Tangent", 20, 1, 21, 2))
sketch3.addConstraint(Sketcher.Constraint("Tangent", 21, 1, 19, 2))
sketch3.addConstraint(Sketcher.Constraint("Tangent", 22, 1, 23, 2))
sketch3.addConstraint(Sketcher.Constraint("Tangent", 23, 1, 24, 2))
sketch3.addConstraint(Sketcher.Constraint("Tangent", 24, 1, 22, 2))
sketch3.addConstraint(Sketcher.Constraint("Tangent", 25, 1, 26, 2))
sketch3.addConstraint(Sketcher.Constraint("Tangent", 26, 1, 27, 2))
sketch3.addConstraint(Sketcher.Constraint("Tangent", 27, 1, 25, 2))
sketch3.addConstraint(Sketcher.Constraint("Equal", 1, 2))
sketch3.addConstraint(Sketcher.Constraint("Equal", 3, 5))
sketch3.addConstraint(Sketcher.Constraint("Equal", 7, 8))
sketch3.addConstraint(Sketcher.Constraint("Equal", 10, 11))
sketch3.addConstraint(Sketcher.Constraint("Equal", 13, 14))
sketch3.addConstraint(Sketcher.Constraint("Equal", 15, 17))
sketch3.addConstraint(Sketcher.Constraint("Equal", 18, 19))
sketch3.addConstraint(Sketcher.Constraint("Equal", 21, 22))
sketch3.addConstraint(Sketcher.Constraint("Equal", 24, 25))
sketch3.addConstraint(Sketcher.Constraint("Symmetric", 0, 3, 14, 3, -1, 1))
sketch3.addConstraint(Sketcher.Constraint("Symmetric", 2, 3, 17, 3, -1, 1))
sketch3.addConstraint(Sketcher.Constraint("Symmetric", 5, 3, 19, 3, -1, 1))
sketch3.addConstraint(Sketcher.Constraint("Symmetric", 8, 3, 22, 3, -1, 1))
sketch3.addConstraint(Sketcher.Constraint("Symmetric", 11, 3, 25, 3, -1, 1))
sketch3.addConstraint(Sketcher.Constraint("Symmetric", 0, 3, 2, 3, -2))
sketch3.addConstraint(Sketcher.Constraint("Symmetric", 11, 3, 19, 3, -2))
sketch3.addConstraint(Sketcher.Constraint("Symmetric", 9, 1, 22, 1, -2))
sketch3.addConstraint(Sketcher.Constraint("PointOnObject", 10, 1, -1))
sketch3.addConstraint(Sketcher.Constraint("PointOnObject", 23, 1, -1))
sketch3.addConstraint(Sketcher.Constraint("Horizontal", 4, 3, 1, 1))
sketch3.addConstraint(Sketcher.Constraint("Horizontal", 1, 1, 2, 1))
sketch3.addConstraint(Sketcher.Constraint("Horizontal", 0, 1, 3, 1))
sketch3.addConstraint(Sketcher.Constraint("Horizontal", 2, 1, 4, 1))
sketch3.addConstraint(Sketcher.Constraint("Horizontal", 27, 3, 7, 1))
sketch3.addConstraint(Sketcher.Constraint("Horizontal", 21, 3, 13, 1))
sketch3.addConstraint(Sketcher.Constraint("Horizontal", 18, 3, 14, 1))
sketch3.addConstraint(Sketcher.Constraint("Horizontal", 14, 1, 15, 1))
sketch3.addConstraint(Sketcher.Constraint("Horizontal", 15, 1, 17, 1))
sketch3.addConstraint(Sketcher.Constraint("Horizontal", 16, 1, 18, 1))
sketch3.addConstraint(Sketcher.Constraint("Horizontal", 12, 1, 19, 1))
sketch3.addConstraint(Sketcher.Constraint("Horizontal", 13, 1, 20, 1))
sketch3.addConstraint(Sketcher.Constraint("Horizontal", 11, 1, 21, 1))
sketch3.addConstraint(Sketcher.Constraint("Horizontal", 8, 1, 24, 1))
sketch3.addConstraint(Sketcher.Constraint("Horizontal", 6, 1, 25, 1))
sketch3.addConstraint(Sketcher.Constraint("Horizontal", 7, 1, 26, 1))
sketch3.addConstraint(Sketcher.Constraint("Horizontal", 5, 1, 27, 1))
sketch3.addConstraint(Sketcher.Constraint("Vertical", 8, 1, 9, 1))
sketch3.addConstraint(Sketcher.Constraint("Vertical", 6, 1, 11, 1))
sketch3.addConstraint(Sketcher.Constraint("Vertical", 5, 1, 12, 1))
sketch3.addConstraint(Sketcher.Constraint("Vertical", 3, 1, 16, 1))
sketch3.addConstraint(Sketcher.Constraint("Radius", 0, Q("0.25 in")))
sketch3.addConstraint(Sketcher.Constraint("DistanceY", 0, 3, -1, 1, Q("3.6 in")))
sketch3.addConstraint(Sketcher.Constraint("DistanceX", 22, 3, 20, 3, 18.3622))
sketch3.addConstraint(Sketcher.Constraint("DistanceY", 3, 1, 5, 1, 27.4621))
sketch3.addConstraint(Sketcher.Constraint("DistanceX", -1, 1, 4, 3, 29.710661))
sketch3.addConstraint(Sketcher.Constraint("DistanceX", -1, 1, 5, 3, 77.78351))
sketch3.addConstraint(Sketcher.Constraint("DistanceY", 5, 3, -1, 1, 56.513028))
sketch3.addConstraint(Sketcher.Constraint("DistanceX", -1, 1, 5, 1, 72.646252))
sketch3.addConstraint(Sketcher.Constraint("DistanceX", -1, 1, 6, 1, 79.745768))
sketch3.addConstraint(Sketcher.Constraint("DistanceY", 8, 1, -1, 1, 6.039209))
sketch3.setExpression("Constraints[68]", "Params.sketch3_radius")
pocket1 = doc.addObject("PartDesign::Pocket", "Pocket")
body.addObject(pocket1)
pocket1.Profile = sketch3
pocket1.setExpression("Length", "Params.pocket1_length")
pocket1.Reversed = True

doc.recompute()
